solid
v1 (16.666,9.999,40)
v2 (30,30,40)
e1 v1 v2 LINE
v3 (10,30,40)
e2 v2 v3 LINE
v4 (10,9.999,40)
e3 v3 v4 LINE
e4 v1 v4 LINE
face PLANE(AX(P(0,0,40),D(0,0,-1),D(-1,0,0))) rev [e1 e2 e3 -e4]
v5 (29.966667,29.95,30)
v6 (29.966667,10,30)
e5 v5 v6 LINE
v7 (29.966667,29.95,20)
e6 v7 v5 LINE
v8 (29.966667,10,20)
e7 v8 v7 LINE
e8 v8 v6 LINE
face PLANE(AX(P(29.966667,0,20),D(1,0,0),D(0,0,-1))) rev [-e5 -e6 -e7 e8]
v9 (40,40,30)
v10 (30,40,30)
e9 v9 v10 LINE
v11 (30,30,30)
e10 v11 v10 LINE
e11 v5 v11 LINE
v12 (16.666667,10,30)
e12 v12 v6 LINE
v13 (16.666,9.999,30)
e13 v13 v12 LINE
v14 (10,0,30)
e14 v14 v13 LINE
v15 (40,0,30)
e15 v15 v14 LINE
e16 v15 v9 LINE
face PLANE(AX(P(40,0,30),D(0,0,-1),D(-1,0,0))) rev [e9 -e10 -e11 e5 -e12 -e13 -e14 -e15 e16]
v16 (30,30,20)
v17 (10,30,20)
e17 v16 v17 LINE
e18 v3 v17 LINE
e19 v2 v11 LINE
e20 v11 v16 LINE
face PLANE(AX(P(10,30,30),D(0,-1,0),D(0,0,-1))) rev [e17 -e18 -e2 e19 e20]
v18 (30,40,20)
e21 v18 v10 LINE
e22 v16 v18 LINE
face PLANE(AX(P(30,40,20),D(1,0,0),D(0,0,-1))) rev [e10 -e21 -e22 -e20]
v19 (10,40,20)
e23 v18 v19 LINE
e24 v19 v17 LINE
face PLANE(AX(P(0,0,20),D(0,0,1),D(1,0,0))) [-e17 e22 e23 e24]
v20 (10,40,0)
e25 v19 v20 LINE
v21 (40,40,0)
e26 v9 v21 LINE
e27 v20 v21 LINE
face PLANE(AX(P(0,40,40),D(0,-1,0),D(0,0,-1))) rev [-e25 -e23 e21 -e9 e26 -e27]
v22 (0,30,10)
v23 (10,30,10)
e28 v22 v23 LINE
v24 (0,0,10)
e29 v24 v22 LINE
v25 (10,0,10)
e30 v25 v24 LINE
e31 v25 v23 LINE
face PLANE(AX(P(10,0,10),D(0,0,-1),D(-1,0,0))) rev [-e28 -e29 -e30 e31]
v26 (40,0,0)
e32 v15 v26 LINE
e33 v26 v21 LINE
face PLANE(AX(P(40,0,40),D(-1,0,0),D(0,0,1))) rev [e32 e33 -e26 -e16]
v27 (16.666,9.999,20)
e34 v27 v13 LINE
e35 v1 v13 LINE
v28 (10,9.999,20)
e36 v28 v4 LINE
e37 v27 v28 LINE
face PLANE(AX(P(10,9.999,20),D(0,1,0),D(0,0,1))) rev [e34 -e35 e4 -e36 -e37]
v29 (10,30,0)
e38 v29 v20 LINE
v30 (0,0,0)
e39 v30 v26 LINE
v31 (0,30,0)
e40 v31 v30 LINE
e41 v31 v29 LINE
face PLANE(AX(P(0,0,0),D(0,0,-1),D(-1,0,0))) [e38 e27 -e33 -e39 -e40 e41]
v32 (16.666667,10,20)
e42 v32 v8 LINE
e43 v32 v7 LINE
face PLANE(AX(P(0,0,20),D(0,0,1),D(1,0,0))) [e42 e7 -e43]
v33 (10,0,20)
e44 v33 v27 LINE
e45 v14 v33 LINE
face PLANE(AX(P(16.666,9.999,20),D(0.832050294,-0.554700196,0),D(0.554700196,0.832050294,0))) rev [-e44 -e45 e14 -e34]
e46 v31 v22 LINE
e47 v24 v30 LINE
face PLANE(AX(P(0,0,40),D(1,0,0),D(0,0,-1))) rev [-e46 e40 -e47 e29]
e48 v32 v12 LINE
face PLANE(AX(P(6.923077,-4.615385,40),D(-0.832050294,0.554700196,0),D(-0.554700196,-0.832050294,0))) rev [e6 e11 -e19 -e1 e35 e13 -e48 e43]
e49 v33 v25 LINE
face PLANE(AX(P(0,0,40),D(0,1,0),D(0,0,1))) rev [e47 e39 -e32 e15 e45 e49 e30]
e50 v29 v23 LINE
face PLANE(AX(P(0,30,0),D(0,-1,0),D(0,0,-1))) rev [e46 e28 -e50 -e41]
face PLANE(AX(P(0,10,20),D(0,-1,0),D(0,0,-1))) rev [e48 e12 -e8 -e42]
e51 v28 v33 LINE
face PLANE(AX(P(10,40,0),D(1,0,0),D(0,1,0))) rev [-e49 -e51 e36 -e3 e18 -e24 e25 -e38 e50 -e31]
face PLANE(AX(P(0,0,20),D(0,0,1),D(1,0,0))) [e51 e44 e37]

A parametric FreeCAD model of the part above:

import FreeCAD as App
import Part
import Sketcher

V = App.Vector
Q = App.Units.Quantity


def add_polygon(sketch, points):
    """Adds a closed chain of lines whose ends are joined by coincident constraints."""
    first, n = sketch.GeometryCount, len(points)
    for a, b in zip(points, points[1:] + points[:1]):
        sketch.addGeometry(Part.LineSegment(App.Vector(*a, 0), App.Vector(*b, 0)), False)
    for i in range(n):
        sketch.addConstraint(Sketcher.Constraint("Coincident", first + i, 2, first + (i + 1) % n, 1))

doc = App.newDocument("Part")
body = doc.addObject("PartDesign::Body", "Body")

sketch1 = body.newObject("Sketcher::SketchObject", "Sketch")
sketch1.AttachmentSupport = (doc.getObject("XY_Plane"), [""])
sketch1.MapMode = "FlatFace"
add_polygon(sketch1, [(0, 40), (0, 0), (40, 0), (40, 40)])
sketch1.addConstraint([
    Sketcher.Constraint("Vertical", 0),
    Sketcher.Constraint("Horizontal", 1),
    Sketcher.Constraint("Vertical", 2),
    Sketcher.Constraint("Horizontal", 3),
    Sketcher.Constraint("Coincident", 0, 2, -1, 1),
    Sketcher.Constraint("Equal", 3, 0),
    Sketcher.Constraint("DistanceX", 1, 1, 1, 2, Q("40 mm")),
])
pad1 = body.newObject("PartDesign::Pad", "Pad")
pad1.Profile = sketch1
pad1.Length = 40

sketch2 = body.newObject("Sketcher::SketchObject", "Sketch001")
sketch2.AttachmentSupport = (doc.getObject("XY_Plane"), [""])
sketch2.MapMode = "FlatFace"
sketch2.AttachmentOffset = App.Placement(V(0, 0, 40), App.Rotation())
add_polygon(sketch2, [(0, 40), (0, 30), (10, 30), (10, 40)])
sketch2.addConstraint([
    Sketcher.Constraint("Vertical", 0),
    Sketcher.Constraint("Horizontal", 1),
    Sketcher.Constraint("Vertical", 2),
    Sketcher.Constraint("Horizontal", 3),
    Sketcher.Constraint("PointOnObject", 0, 2, -2),
    Sketcher.Constraint("Equal", 3, 0),
    Sketcher.Constraint("DistanceX", 1, 1, 1, 2, Q("10 mm")),
    Sketcher.Constraint("DistanceY", -1, 1, 0, 2, Q("30 mm")),
])
pocket1 = body.newObject("PartDesign::Pocket", "Pocket")
pocket1.Profile = sketch2
pocket1.Length = 40

sketch3 = body.newObject("Sketcher::SketchObject", "Sketch002")
sketch3.AttachmentSupport = (doc.getObject("XZ_Plane"), [""])
sketch3.MapMode = "FlatFace"
sketch3.AttachmentOffset = App.Placement(V(0, 0, -40), App.Rotation())
add_polygon(sketch3, [(30, 30), (30, 40), (40, 40), (40, 30)])
add_polygon(sketch3, [(0, 10), (0, 40), (10, 40), (10, 10)])
sketch3.addConstraint([
    Sketcher.Constraint("Vertical", 0),
    Sketcher.Constraint("Horizontal", 1),
    Sketcher.Constraint("Vertical", 2),
    Sketcher.Constraint("Horizontal", 3),
    Sketcher.Constraint("Vertical", 4),
    Sketcher.Constraint("Horizontal", 5),
    Sketcher.Constraint("Vertical", 6),
    Sketcher.Constraint("Horizontal", 7),
    Sketcher.Constraint("PointOnObject", 4, 2, -2),
    Sketcher.Constraint("Horizontal", 1, 2, 4, 2),
    Sketcher.Constraint("Equal", 3, 5),
    Sketcher.Constraint("Equal", 7, 0),
    Sketcher.Constraint("DistanceX", 1, 1, 1, 2, Q("10 mm")),
    Sketcher.Constraint("DistanceY", 4, 1, 4, 2, Q("30 mm")),
    Sketcher.Constraint("DistanceX", -1, 1, 0, 2, Q("30 mm")),
    Sketcher.Constraint("DistanceY", -1, 1, 0, 2, Q("40 mm")),
])
pocket2 = body.newObject("PartDesign::Pocket", "Pocket001")
pocket2.Profile = sketch3
pocket2.Length = 40
pocket2.Reversed = True

sketch4 = body.newObject("Sketcher::SketchObject", "Sketch003")
sketch4.AttachmentSupport = (doc.getObject("XY_Plane"), [""])
sketch4.MapMode = "FlatFace"
sketch4.AttachmentOffset = App.Placement(V(0, 0, 40), App.Rotation())
add_polygon(sketch4, [(10, 10), (10, 0), (30, 0), (30, 10)])
sketch4.addConstraint([
    Sketcher.Constraint("Vertical", 0),
    Sketcher.Constraint("Horizontal", 1),
    Sketcher.Constraint("Vertical", 2),
    Sketcher.Constraint("Horizontal", 3),
    Sketcher.Constraint("PointOnObject", 0, 2, -1),
    Sketcher.Constraint("DistanceX", 1, 1, 1, 2, Q("20 mm")),
    Sketcher.Constraint("DistanceY", 0, 2, 0, 1, Q("10 mm")),
    Sketcher.Constraint("DistanceX", -1, 1, 0, 2, Q("10 mm")),
])
pocket3 = body.newObject("PartDesign::Pocket", "Pocket002")
pocket3.Profile = sketch4
pocket3.Length = 10

sketch5 = body.newObject("Sketcher::SketchObject", "Sketch004")
sketch5.AttachmentSupport = (doc.getObject("XY_Plane"), [""])
sketch5.MapMode = "FlatFace"
sketch5.AttachmentOffset = App.Placement(V(0, 0, 40), App.Rotation())
add_polygon(sketch5, [(10, 40), (10, 30), (30, 30), (30, 40)])
sketch5.addConstraint([
    Sketcher.Constraint("Vertical", 0),
    Sketcher.Constraint("Horizontal", 1),
    Sketcher.Constraint("Vertical", 2),
    Sketcher.Constraint("Horizontal", 3),
    Sketcher.Constraint("DistanceX", 1, 1, 1, 2, Q("20 mm")),
    Sketcher.Constraint("DistanceY", 0, 2, 0, 1, Q("10 mm")),
    Sketcher.Constraint("DistanceX", -1, 1, 0, 2, Q("10 mm")),
    Sketcher.Constraint("DistanceY", -1, 1, 0, 2, Q("30 mm")),
])
pocket4 = body.newObject("PartDesign::Pocket", "Pocket003")
pocket4.Profile = sketch5
pocket4.Length = 20

sketch6 = body.newObject("Sketcher::SketchObject", "Sketch005")
sketch6.AttachmentSupport = (doc.getObject("XY_Plane"), [""])
sketch6.MapMode = "FlatFace"
sketch6.AttachmentOffset = App.Placement(V(0, 0, 40), App.Rotation())
add_polygon(sketch6, [(10, 30), (10, 10), (30, 10), (30, 30)])
sketch6.addConstraint([
    Sketcher.Constraint("Vertical", 0),
    Sketcher.Constraint("Horizontal", 1),
    Sketcher.Constraint("Vertical", 2),
    Sketcher.Constraint("Horizontal", 3),
    Sketcher.Constraint("Equal", 3, 0),
    Sketcher.Constraint("DistanceX", 1, 1, 1, 2, Q("20 mm")),
    Sketcher.Constraint("DistanceX", -1, 1, 0, 2, Q("10 mm")),
    Sketcher.Constraint("DistanceY", -1, 1, 0, 2, Q("10 mm")),
])
pocket5 = body.newObject("PartDesign::Pocket", "Pocket004")
pocket5.Profile = sketch6
pocket5.Length = 10

sketch7 = body.newObject("Sketcher::SketchObject", "Sketch006")
sketch7.AttachmentSupport = (doc.getObject("XY_Plane"), [""])
sketch7.MapMode = "FlatFace"
add_polygon(sketch7, [(40, 40), (10, 30), (10, 40)])
sketch7.addConstraint([
    Sketcher.Constraint("Vertical", 1),
    Sketcher.Constraint("Horizontal", 2),
    Sketcher.Constraint("DistanceX", 2, 1, 2, 2, Q("30 mm")),
    Sketcher.Constraint("DistanceY", 1, 1, 1, 2, Q("10 mm")),
    Sketcher.Constraint("DistanceX", -1, 1, 0, 2, Q("10 mm")),
    Sketcher.Constraint("DistanceY", -1, 1, 0, 2, Q("30 mm")),
])
pocket6 = body.newObject("PartDesign::Pocket", "Pocket005")
pocket6.Profile = sketch7
pocket6.Length = 10
pocket6.Reversed = True

sketch8 = body.newObject("Sketcher::SketchObject", "Sketch007")
sketch8.AttachmentSupport = (doc.getObject("XY_Plane"), [""])
sketch8.MapMode = "FlatFace"
sketch8.AttachmentOffset = App.Placement(V(0, 0, 20), App.Rotation())
add_polygon(sketch8, [(10, 40), (10, 30), (30, 30), (30, 40)])
sketch8.addConstraint([
    Sketcher.Constraint("Vertical", 0),
    Sketcher.Constraint("Horizontal", 1),
    Sketcher.Constraint("Vertical", 2),
    Sketcher.Constraint("Horizontal", 3),
    Sketcher.Constraint("DistanceX", 1, 1, 1, 2, Q("20 mm")),
    Sketcher.Constraint("DistanceY", 0, 2, 0, 1, Q("10 mm")),
    Sketcher.Constraint("DistanceX", -1, 1, 0, 2, Q("10 mm")),
    Sketcher.Constraint("DistanceY", -1, 1, 0, 2, Q("30 mm")),
])
pocket7 = body.newObject("PartDesign::Pocket", "Pocket006")
pocket7.Profile = sketch8
pocket7.Length = 10

sketch9 = body.newObject("Sketcher::SketchObject", "Sketch008")
sketch9.AttachmentSupport = (doc.getObject("XY_Plane"), [""])
sketch9.MapMode = "FlatFace"
add_polygon(sketch9, [(10, 40), (40, 40), (10, 30)])
sketch9.addConstraint([
    Sketcher.Constraint("Horizontal", 0),
    Sketcher.Constraint("Vertical", 2),
    Sketcher.Constraint("DistanceX", 0, 1, 0, 2, Q("30 mm")),
    Sketcher.Constraint("DistanceY", 2, 1, 2, 2, Q("10 mm")),
    Sketcher.Constraint("DistanceX", -1, 1, 0, 2, Q("40 mm")),
    Sketcher.Constraint("DistanceY", -1, 1, 0, 2, Q("40 mm")),
])
pad2 = body.newObject("PartDesign::Pad", "Pad001")
pad2.Profile = sketch9
pad2.Length = 10

sketch10 = body.newObject("Sketcher::SketchObject", "Sketch009")
sketch10.AttachmentSupport = (doc.getObject("XY_Plane"), [""])
sketch10.MapMode = "FlatFace"
sketch10.AttachmentOffset = App.Placement(V(0, 0, 30), App.Rotation())
add_polygon(sketch10, [(10, 30), (10, 10), (30, 10), (30, 30)])
sketch10.addConstraint([
    Sketcher.Constraint("Vertical", 0),
    Sketcher.Constraint("Horizontal", 1),
    Sketcher.Constraint("Vertical", 2),
    Sketcher.Constraint("Horizontal", 3),
    Sketcher.Constraint("Equal", 3, 0),
    Sketcher.Constraint("DistanceX", 1, 1, 1, 2, Q("20 mm")),
    Sketcher.Constraint("DistanceX", -1, 1, 0, 2, Q("10 mm")),
    Sketcher.Constraint("DistanceY", -1, 1, 0, 2, Q("10 mm")),
])
pocket8 = body.newObject("PartDesign::Pocket", "Pocket007")
pocket8.Profile = sketch10
pocket8.Length = 10

sketch11 = body.newObject("Sketcher::SketchObject", "Sketch010")
sketch11.AttachmentSupport = (doc.getObject("XY_Plane"), [""])
sketch11.MapMode = "FlatFace"
sketch11.AttachmentOffset = App.Placement(V(0, 0, 30), App.Rotation())
add_polygon(sketch11, [(10, 0), (30, 30), (10, 30)])
sketch11.addConstraint([
    Sketcher.Constraint("Horizontal", 1),
    Sketcher.Constraint("Vertical", 2),
    Sketcher.Constraint("PointOnObject", 2, 2, -1),
    Sketcher.Constraint("DistanceX", 1, 2, 1, 1, Q("20 mm")),
    Sketcher.Constraint("DistanceY", 2, 2, 2, 1, Q("30 mm")),
    Sketcher.Constraint("DistanceX", -1, 1, 0, 2, Q("30 mm")),
])
pocket9 = body.newObject("PartDesign::Pocket", "Pocket008")
pocket9.Profile = sketch11
pocket9.Length = 10

sketch12 = body.newObject("Sketcher::SketchObject", "Sketch011")
sketch12.AttachmentSupport = (doc.getObject("XY_Plane"), [""])
sketch12.MapMode = "FlatFace"
sketch12.AttachmentOffset = App.Placement(V(0, 0, 10), App.Rotation())
add_polygon(sketch12, [(10, 40), (10, 30), (30, 30), (30, 40)])
sketch12.addConstraint([
    Sketcher.Constraint("Vertical", 0),
    Sketcher.Constraint("Horizontal", 1),
    Sketcher.Constraint("Vertical", 2),
    Sketcher.Constraint("Horizontal", 3),
    Sketcher.Constraint("DistanceX", 1, 1, 1, 2, Q("20 mm")),
    Sketcher.Constraint("DistanceY", 0, 2, 0, 1, Q("10 mm")),
    Sketcher.Constraint("DistanceX", -1, 1, 0, 2, Q("10 mm")),
    Sketcher.Constraint("DistanceY", -1, 1, 0, 2, Q("30 mm")),
])
pad3 = body.newObject("PartDesign::Pad", "Pad002")
pad3.Profile = sketch12
pad3.Length = 10

sketch13 = body.newObject("Sketcher::SketchObject", "Sketch012")
sketch13.AttachmentSupport = (doc.getObject("XY_Plane"), [""])
sketch13.MapMode = "FlatFace"
sketch13.AttachmentOffset = App.Placement(V(0, 0, 20), App.Rotation())
add_polygon(sketch13, [(17, 10), (10, 10), (10, 0)])
sketch13.addConstraint([
    Sketcher.Constraint("Horizontal", 0),
    Sketcher.Constraint("Vertical", 1),
    Sketcher.Constraint("PointOnObject", 1, 2, -1),
    Sketcher.Constraint("DistanceY", 1, 2, 1, 1, Q("10 mm")),
    Sketcher.Constraint("DistanceX", -1, 1, 0, 2, Q("10 mm")),
    Sketcher.Constraint("DistanceX", 0, 2, 0, 1, Q("6.666667 mm")),
])
pad4 = body.newObject("PartDesign::Pad", "Pad003")
pad4.Profile = sketch13
pad4.Length = 10

sketch14 = body.newObject("Sketcher::SketchObject", "Sketch013")
sketch14.AttachmentSupport = (doc.getObject("XY_Plane"), [""])
sketch14.MapMode = "FlatFace"
sketch14.AttachmentOffset = App.Placement(V(0, 0, 20), App.Rotation())
add_polygon(sketch14, [(10, 30), (10, 10), (30, 10), (30, 30)])
sketch14.addConstraint([
    Sketcher.Constraint("Vertical", 0),
    Sketcher.Constraint("Horizontal", 1),
    Sketcher.Constraint("Vertical", 2),
    Sketcher.Constraint("Horizontal", 3),
    Sketcher.Constraint("Equal", 3, 0),
    Sketcher.Constraint("DistanceX", 1, 1, 1, 2, Q("20 mm")),
    Sketcher.Constraint("DistanceX", -1, 1, 0, 2, Q("10 mm")),
    Sketcher.Constraint("DistanceY", -1, 1, 0, 2, Q("10 mm")),
])
pad5 = body.newObject("PartDesign::Pad", "Pad004")
pad5.Profile = sketch14
pad5.Length = 10

sketch15 = body.newObject("Sketcher::SketchObject", "Sketch014")
sketch15.AttachmentSupport = (doc.getObject("XY_Plane"), [""])
sketch15.MapMode = "FlatFace"
sketch15.AttachmentOffset = App.Placement(V(0, 0, 30), App.Rotation())
add_polygon(sketch15, [(10, 0), (30, 30), (10, 30)])
sketch15.addConstraint([
    Sketcher.Constraint("Horizontal", 1),
    Sketcher.Constraint("Vertical", 2),
    Sketcher.Constraint("PointOnObject", 2, 2, -1),
    Sketcher.Constraint("DistanceX", 1, 2, 1, 1, Q("20 mm")),
    Sketcher.Constraint("DistanceY", 2, 2, 2, 1, Q("30 mm")),
    Sketcher.Constraint("DistanceX", -1, 1, 0, 2, Q("30 mm")),
])
pad6 = body.newObject("PartDesign::Pad", "Pad005")
pad6.Profile = sketch15
pad6.Length = 10

sketch16 = body.newObject("Sketcher::SketchObject", "Sketch015")
sketch16.AttachmentSupport = (doc.getObject("XY_Plane"), [""])
sketch16.MapMode = "FlatFace"
sketch16.AttachmentOffset = App.Placement(V(0, 0, 30), App.Rotation())
add_polygon(sketch16, [(30, 10), (30, 30), (17, 10)])
sketch16.addConstraint([
    Sketcher.Constraint("Vertical", 0),
    Sketcher.Constraint("Horizontal", 2),
    Sketcher.Constraint("DistanceY", 0, 1, 0, 2, Q("20 mm")),
    Sketcher.Constraint("DistanceX", -1, 1, 0, 2, Q("30 mm")),
    Sketcher.Constraint("DistanceY", -1, 1, 0, 2, Q("30 mm")),
    Sketcher.Constraint("Distance", 1, Q("24.037009 mm")),
])
pad7 = body.newObject("PartDesign::Pad", "Pad006")
pad7.Profile = sketch16
pad7.Length = 10

sketch17 = body.newObject("Sketcher::SketchObject", "Sketch016")
sketch17.AttachmentSupport = (doc.getObject("XY_Plane"), [""])
sketch17.MapMode = "FlatFace"
sketch17.AttachmentOffset = App.Placement(V(0, 0, 40), App.Rotation())
add_polygon(sketch17, [(10, 0), (30, 30), (10, 30)])
sketch17.addConstraint([
    Sketcher.Constraint("Horizontal", 1),
    Sketcher.Constraint("Vertical", 2),
    Sketcher.Constraint("PointOnObject", 2, 2, -1),
    Sketcher.Constraint("DistanceX", 1, 2, 1, 1, Q("20 mm")),
    Sketcher.Constraint("DistanceY", 2, 2, 2, 1, Q("30 mm")),
    Sketcher.Constraint("DistanceX", -1, 1, 0, 2, Q("30 mm")),
])
pocket10 = body.newObject("PartDesign::Pocket", "Pocket009")
pocket10.Profile = sketch17
pocket10.Length = 10

sketch18 = body.newObject("Sketcher::SketchObject", "Sketch017")
sketch18.AttachmentSupport = (doc.getObject("XY_Plane"), [""])
sketch18.MapMode = "FlatFace"
sketch18.AttachmentOffset = App.Placement(V(0, 0, 30), App.Rotation())
add_polygon(sketch18, [(17, 10), (30, 30), (10, 30), (10, 0)])
sketch18.addConstraint([
    Sketcher.Constraint("Horizontal", 1),
    Sketcher.Constraint("Vertical", 2),
    Sketcher.Constraint("PointOnObject", 2, 2, -1),
    Sketcher.Constraint("Parallel", 0, 3),
    Sketcher.Constraint("DistanceX", 1, 2, 1, 1, Q("20 mm")),
    Sketcher.Constraint("DistanceY", 2, 2, 2, 1, Q("30 mm")),
    Sketcher.Constraint("DistanceX", -1, 1, 0, 2, Q("30 mm")),
    Sketcher.Constraint("DistanceY", -1, 1, 3, 2, Q("10 mm")),
])
pad8 = body.newObject("PartDesign::Pad", "Pad007")
pad8.Profile = sketch18
pad8.Length = 10

sketch19 = body.newObject("Sketcher::SketchObject", "Sketch018")
sketch19.AttachmentSupport = (doc.getObject("XY_Plane"), [""])
sketch19.MapMode = "FlatFace"
sketch19.AttachmentOffset = App.Placement(V(0, 0, 40), App.Rotation())
add_polygon(sketch19, [(30, 30), (17, 10), (30, 10)])
sketch19.addConstraint([
    Sketcher.Constraint("Horizontal", 1),
    Sketcher.Constraint("Vertical", 2),
    Sketcher.Constraint("DistanceX", 1, 1, 1, 2, Q("13.3 mm")),
    Sketcher.Constraint("DistanceY", -1, 1, 0, 2, Q("10 mm")),
    Sketcher.Constraint("DistanceY", 2, 1, 2, 2, Q("19.95 mm")),
    Sketcher.Constraint("DistanceX", -1, 1, 0, 2, Q("16.666667 mm")),
])
pocket11 = body.newObject("PartDesign::Pocket", "Pocket010")
pocket11.Profile = sketch19
pocket11.Length = 20

sketch20 = body.newObject("Sketcher::SketchObject", "Sketch019")
sketch20.AttachmentSupport = (doc.getObject("XY_Plane"), [""])
sketch20.MapMode = "FlatFace"
sketch20.AttachmentOffset = App.Placement(V(0, 0, 40), App.Rotation())
add_polygon(sketch20, [(30, 30), (10, 30), (10, 10), (17, 10)])
sketch20.addConstraint([
    Sketcher.Constraint("Horizontal", 0),
    Sketcher.Constraint("Vertical", 1),
    Sketcher.Constraint("Horizontal", 2),
    Sketcher.Constraint("Equal", 0, 1),
    Sketcher.Constraint("DistanceX", 0, 2, 0, 1, Q("20 mm")),
    Sketcher.Constraint("DistanceX", -1, 1, 0, 2, Q("10 mm")),
    Sketcher.Constraint("DistanceY", -1, 1, 0, 2, Q("30 mm")),
    Sketcher.Constraint("Distance", 3, Q("24.037009 mm")),
])
pocket12 = body.newObject("PartDesign::Pocket", "Pocket011")
pocket12.Profile = sketch20
pocket12.Length = 10

sketch21 = body.newObject("Sketcher::SketchObject", "Sketch020")
sketch21.AttachmentSupport = (doc.getObject("YZ_Plane"), [""])
sketch21.MapMode = "FlatFace"
sketch21.AttachmentOffset = App.Placement(V(0, 0, 29.966667), App.Rotation())
add_polygon(sketch21, [(30, 30), (10, 30), (10, 40), (30, 40)])
sketch21.addConstraint([
    Sketcher.Constraint("Horizontal", 0),
    Sketcher.Constraint("Vertical", 1),
    Sketcher.Constraint("Horizontal", 2),
    Sketcher.Constraint("Vertical", 3),
    Sketcher.Constraint("DistanceY", 1, 1, 1, 2, Q("10 mm")),
    Sketcher.Constraint("DistanceX", -1, 1, 0, 2, Q("10 mm")),
    Sketcher.Constraint("DistanceY", -1, 1, 0, 2, Q("30 mm")),
    Sketcher.Constraint("DistanceX", 0, 2, 0, 1, Q("19.95 mm")),
])
pocket13 = body.newObject("PartDesign::Pocket", "Pocket012")
pocket13.Profile = sketch21
pocket13.Length = 10
pocket13.Reversed = True

sketch22 = body.newObject("Sketcher::SketchObject", "Sketch021")
sketch22.AttachmentSupport = (doc.getObject("XZ_Plane"), [""])
sketch22.MapMode = "FlatFace"
sketch22.AttachmentOffset = App.Placement(V(0, 0, -29.95), App.Rotation())
add_polygon(sketch22, [(29.967, 40), (29.967, 30), (30, 30), (30, 40)])
sketch22.addConstraint([
    Sketcher.Constraint("Vertical", 0),
    Sketcher.Constraint("Horizontal", 1),
    Sketcher.Constraint("Vertical", 2),
    Sketcher.Constraint("Horizontal", 3),
    Sketcher.Constraint("DistanceY", 0, 2, 0, 1, Q("10 mm")),
    Sketcher.Constraint("DistanceY", -1, 1, 0, 2, Q("30 mm")),
    Sketcher.Constraint("DistanceX", -1, 1, 1, 2, Q("30 mm")),
    Sketcher.Constraint("DistanceX", 1, 1, 1, 2, Q("0.033333 mm")),
])
pocket14 = body.newObject("PartDesign::Pocket", "Pocket013")
pocket14.Profile = sketch22
pocket14.Length = 10

sketch23 = body.newObject("Sketcher::SketchObject", "Sketch022")
sketch23.AttachmentSupport = (doc.getObject("XY_Plane"), [""])
sketch23.MapMode = "FlatFace"
sketch23.AttachmentOffset = App.Placement(V(0, 0, 30), App.Rotation())
add_polygon(sketch23, [(10, 10), (17, 10), (30, 30), (10, 30)])
sketch23.addConstraint([
    Sketcher.Constraint("Horizontal", 0),
    Sketcher.Constraint("Horizontal", 2),
    Sketcher.Constraint("Vertical", 3),
    Sketcher.Constraint("Equal", 2, 3),
    Sketcher.Constraint("DistanceX", 2, 2, 2, 1, Q("20 mm")),
    Sketcher.Constraint("DistanceY", -1, 1, 0, 2, Q("10 mm")),
    Sketcher.Constraint("DistanceX", -1, 1, 1, 2, Q("30 mm")),
    Sketcher.Constraint("Distance", 1, Q("24.037009 mm")),
])
pad9 = body.newObject("PartDesign::Pad", "Pad008")
pad9.Profile = sketch23
pad9.Length = 10

sketch24 = body.newObject("Sketcher::SketchObject", "Sketch023")
sketch24.AttachmentSupport = (doc.getObject("XY_Plane"), [""])
sketch24.MapMode = "FlatFace"
sketch24.AttachmentOffset = App.Placement(V(0, 0, 40), App.Rotation())
add_polygon(sketch24, [(10, 10), (10, 0), (17, 10)])
sketch24.addConstraint([
    Sketcher.Constraint("Vertical", 0),
    Sketcher.Constraint("Horizontal", 2),
    Sketcher.Constraint("PointOnObject", 0, 2, -1),
    Sketcher.Constraint("DistanceX", -1, 1, 0, 2, Q("10 mm")),
    Sketcher.Constraint("DistanceX", 2, 2, 2, 1, Q("6.666 mm")),
    Sketcher.Constraint("DistanceY", 0, 2, 0, 1, Q("9.999 mm")),
])
pocket15 = body.newObject("PartDesign::Pocket", "Pocket014")
pocket15.Profile = sketch24
pocket15.Length = 20

doc.recompute()
